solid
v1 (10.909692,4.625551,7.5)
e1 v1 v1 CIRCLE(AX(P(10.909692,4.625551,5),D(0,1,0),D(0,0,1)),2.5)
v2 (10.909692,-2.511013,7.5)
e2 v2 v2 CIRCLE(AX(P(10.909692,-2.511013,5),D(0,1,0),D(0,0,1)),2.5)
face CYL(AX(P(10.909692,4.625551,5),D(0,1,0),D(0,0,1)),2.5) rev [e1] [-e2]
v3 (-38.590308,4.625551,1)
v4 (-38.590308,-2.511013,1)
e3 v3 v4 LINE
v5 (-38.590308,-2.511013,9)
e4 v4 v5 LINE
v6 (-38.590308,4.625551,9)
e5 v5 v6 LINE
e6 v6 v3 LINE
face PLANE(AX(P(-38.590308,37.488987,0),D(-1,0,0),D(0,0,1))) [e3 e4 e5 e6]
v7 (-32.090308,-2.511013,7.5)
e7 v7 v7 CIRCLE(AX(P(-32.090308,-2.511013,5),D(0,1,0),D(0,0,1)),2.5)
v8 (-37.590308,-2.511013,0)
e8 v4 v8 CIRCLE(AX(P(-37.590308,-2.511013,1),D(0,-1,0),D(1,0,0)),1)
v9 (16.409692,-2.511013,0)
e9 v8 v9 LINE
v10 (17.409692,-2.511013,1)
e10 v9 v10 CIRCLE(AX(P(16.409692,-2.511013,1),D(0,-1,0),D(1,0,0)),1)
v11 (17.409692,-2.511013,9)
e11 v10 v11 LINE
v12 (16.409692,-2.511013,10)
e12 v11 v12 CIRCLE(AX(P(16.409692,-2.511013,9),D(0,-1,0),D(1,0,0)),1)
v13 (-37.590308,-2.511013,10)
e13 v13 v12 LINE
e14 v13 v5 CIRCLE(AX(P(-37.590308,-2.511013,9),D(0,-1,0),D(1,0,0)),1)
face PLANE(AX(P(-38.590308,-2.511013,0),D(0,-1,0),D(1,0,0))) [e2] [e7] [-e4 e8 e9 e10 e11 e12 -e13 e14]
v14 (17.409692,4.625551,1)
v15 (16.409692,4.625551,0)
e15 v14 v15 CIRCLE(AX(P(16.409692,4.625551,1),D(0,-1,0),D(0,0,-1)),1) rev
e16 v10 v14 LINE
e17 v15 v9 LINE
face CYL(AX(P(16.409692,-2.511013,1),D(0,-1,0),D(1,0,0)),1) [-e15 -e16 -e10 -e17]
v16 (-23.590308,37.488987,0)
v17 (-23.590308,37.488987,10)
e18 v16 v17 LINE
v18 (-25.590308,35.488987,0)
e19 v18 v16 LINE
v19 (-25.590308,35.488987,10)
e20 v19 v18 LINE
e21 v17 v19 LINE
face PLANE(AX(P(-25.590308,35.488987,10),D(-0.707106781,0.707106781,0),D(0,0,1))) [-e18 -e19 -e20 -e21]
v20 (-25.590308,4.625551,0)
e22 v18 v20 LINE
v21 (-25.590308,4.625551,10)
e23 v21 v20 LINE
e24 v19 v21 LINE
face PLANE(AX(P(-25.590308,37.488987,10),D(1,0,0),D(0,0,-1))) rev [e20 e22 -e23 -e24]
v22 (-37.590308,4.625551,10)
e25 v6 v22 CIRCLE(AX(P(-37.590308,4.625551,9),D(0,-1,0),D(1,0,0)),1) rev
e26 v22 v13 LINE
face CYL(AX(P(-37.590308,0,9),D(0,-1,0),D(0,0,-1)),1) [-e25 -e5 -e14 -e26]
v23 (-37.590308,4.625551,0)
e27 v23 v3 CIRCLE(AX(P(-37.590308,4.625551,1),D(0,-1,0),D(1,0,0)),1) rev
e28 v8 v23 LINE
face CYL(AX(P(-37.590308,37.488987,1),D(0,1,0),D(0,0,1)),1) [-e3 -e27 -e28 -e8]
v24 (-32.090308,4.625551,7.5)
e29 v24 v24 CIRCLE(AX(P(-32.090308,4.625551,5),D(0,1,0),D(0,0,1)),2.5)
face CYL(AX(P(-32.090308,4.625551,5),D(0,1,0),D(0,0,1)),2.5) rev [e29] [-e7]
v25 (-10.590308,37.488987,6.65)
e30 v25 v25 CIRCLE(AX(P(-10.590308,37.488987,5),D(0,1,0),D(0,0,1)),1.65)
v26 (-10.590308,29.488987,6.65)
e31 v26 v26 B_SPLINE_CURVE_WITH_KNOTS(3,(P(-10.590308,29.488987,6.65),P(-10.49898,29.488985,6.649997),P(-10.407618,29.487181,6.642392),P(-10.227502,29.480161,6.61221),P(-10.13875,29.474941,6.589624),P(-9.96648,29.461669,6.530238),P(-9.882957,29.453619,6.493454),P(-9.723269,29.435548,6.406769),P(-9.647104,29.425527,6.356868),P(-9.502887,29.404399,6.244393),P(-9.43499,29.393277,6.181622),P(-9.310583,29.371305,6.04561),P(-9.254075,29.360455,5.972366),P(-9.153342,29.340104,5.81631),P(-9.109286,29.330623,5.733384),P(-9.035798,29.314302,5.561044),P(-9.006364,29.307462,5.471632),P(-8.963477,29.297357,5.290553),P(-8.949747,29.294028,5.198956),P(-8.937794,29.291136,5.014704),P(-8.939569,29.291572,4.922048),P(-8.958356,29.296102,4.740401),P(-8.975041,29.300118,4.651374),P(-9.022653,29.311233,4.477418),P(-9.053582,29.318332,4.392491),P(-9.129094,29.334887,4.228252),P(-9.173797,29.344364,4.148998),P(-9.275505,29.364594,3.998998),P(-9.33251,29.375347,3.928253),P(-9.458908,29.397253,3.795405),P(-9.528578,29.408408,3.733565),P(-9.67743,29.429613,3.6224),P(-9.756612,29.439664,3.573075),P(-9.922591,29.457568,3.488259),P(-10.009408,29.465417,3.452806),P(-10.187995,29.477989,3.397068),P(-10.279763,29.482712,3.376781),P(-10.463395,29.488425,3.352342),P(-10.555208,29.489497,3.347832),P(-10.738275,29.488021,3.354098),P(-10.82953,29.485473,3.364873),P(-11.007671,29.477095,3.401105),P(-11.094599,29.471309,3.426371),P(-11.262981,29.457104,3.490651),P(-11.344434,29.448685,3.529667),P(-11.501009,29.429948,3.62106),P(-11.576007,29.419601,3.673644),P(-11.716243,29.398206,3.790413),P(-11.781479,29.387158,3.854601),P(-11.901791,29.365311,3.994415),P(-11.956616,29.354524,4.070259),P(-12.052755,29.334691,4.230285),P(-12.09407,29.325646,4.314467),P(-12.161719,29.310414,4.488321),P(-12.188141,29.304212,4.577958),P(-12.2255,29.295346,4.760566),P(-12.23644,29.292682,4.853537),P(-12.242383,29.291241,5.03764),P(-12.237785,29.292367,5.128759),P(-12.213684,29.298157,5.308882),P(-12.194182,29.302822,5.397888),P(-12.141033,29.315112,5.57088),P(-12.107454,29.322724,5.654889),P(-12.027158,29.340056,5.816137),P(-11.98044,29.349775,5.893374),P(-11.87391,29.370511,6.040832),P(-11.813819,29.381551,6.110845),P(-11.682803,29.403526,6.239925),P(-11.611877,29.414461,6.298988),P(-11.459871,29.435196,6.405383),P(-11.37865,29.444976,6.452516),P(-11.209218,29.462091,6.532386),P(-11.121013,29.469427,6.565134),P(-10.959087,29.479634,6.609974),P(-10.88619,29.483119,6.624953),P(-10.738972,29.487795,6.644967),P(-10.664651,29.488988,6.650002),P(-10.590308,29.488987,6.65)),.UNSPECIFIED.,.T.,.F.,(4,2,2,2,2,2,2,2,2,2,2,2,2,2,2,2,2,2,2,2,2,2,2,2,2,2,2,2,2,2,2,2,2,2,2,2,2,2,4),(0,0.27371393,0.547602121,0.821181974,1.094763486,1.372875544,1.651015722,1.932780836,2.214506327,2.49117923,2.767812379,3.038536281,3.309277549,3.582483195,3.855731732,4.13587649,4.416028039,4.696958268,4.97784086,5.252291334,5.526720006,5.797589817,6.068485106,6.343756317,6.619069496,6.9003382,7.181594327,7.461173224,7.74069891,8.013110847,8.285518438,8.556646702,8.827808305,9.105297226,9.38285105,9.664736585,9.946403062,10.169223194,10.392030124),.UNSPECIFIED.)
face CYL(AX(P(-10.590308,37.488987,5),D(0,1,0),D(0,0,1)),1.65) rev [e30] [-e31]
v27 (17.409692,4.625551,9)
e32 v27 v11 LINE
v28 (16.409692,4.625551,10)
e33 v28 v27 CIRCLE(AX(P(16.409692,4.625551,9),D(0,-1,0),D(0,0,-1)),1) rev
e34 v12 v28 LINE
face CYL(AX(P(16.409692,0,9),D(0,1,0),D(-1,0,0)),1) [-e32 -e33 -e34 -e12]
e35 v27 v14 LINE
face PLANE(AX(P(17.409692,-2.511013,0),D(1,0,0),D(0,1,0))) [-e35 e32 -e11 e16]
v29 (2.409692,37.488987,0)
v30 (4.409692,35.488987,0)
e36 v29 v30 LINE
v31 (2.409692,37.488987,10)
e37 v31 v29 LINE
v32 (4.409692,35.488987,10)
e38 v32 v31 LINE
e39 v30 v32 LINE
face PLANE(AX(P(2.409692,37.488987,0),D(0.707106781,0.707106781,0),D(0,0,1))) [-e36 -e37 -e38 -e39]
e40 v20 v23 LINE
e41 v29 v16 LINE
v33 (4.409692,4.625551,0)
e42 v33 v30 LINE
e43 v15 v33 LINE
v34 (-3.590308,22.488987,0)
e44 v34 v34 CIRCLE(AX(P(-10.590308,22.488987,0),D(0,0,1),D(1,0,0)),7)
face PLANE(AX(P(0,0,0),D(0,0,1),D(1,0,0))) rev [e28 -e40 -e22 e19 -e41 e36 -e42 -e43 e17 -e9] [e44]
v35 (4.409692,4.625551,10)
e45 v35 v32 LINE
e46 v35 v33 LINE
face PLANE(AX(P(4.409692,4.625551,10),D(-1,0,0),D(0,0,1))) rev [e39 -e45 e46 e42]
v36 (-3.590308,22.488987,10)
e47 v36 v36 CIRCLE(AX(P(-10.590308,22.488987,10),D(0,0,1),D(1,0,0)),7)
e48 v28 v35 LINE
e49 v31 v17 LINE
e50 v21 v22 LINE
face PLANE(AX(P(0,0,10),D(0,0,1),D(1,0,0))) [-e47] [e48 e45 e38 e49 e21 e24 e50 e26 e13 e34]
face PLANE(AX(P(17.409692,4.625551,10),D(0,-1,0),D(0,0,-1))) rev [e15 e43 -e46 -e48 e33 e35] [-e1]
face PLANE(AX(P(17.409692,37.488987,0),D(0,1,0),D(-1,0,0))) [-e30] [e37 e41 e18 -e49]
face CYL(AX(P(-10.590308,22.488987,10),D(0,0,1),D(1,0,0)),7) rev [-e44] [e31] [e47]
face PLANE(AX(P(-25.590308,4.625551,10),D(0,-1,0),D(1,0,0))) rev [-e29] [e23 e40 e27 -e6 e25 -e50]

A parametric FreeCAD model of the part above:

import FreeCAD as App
import Part
import Sketcher

V = App.Vector
Q = App.Units.Quantity


def edges_at(feature, points):
    """Names of the edges that pass closest to the given points."""
    edges = feature.Shape.Edges
    near = lambda p: min(range(len(edges)), key=lambda i: edges[i].distToShape(Part.Vertex(*p))[0])
    return sorted({f"Edge{near(p) + 1}" for p in points})

doc = App.newDocument("Part")
params = doc.addObject("Spreadsheet::Sheet", "Params")
for row, (alias, value) in enumerate([
    ("sketch1_width", "56 mm"),
    ("sketch1_height", "40 mm"),
    ("pad1_length", "10 mm"),
    ("sketch2_width", "13 mm"),
    ("sketch3_width", "13 mm"),
    ("sketch4_diameter", "14 mm"),
    ("hole_diameter", "14 mm"),
    ("sketch5_diameter", "3.3 mm"),
    ("sketch6_diameter", "5 mm"),
    ("hole2_diameter", "5 mm"),
    ("chamfer_size", "2 mm"),
    ("fillet_radius", "1 mm"),
], start=1):
    params.set(f"A{row}", alias)
    params.set(f"B{row}", "=" + value)
    params.setAlias(f"B{row}", alias)

body = doc.addObject("PartDesign::Body", "Body")

sketch1 = body.newObject("Sketcher::SketchObject", "Sketch")
sketch1.AttachmentSupport = (doc.getObject("XY_Plane"), [""])
sketch1.MapMode = "FlatFace"
sketch1.AttachmentOffset = App.Placement(V(0, 0, 10), App.Rotation())
sketch1.addGeometry([
    Part.LineSegment(V(-38.590308, 37.488987, 0), V(-38.590308, -2.511013, 0)),
    Part.LineSegment(V(-38.590308, -2.511013, 0), V(17.409692, -2.511013, 0)),
    Part.LineSegment(V(17.409692, -2.511013, 0), V(17.409692, 37.488987, 0)),
    Part.LineSegment(V(17.409692, 37.488987, 0), V(-38.590308, 37.488987, 0)),
], False)
sketch1.addConstraint([
    Sketcher.Constraint("Coincident", 0, 2, 1, 1),
    Sketcher.Constraint("Coincident", 1, 2, 2, 1),
    Sketcher.Constraint("Coincident", 2, 2, 3, 1),
    Sketcher.Constraint("Coincident", 3, 2, 0, 1),
    Sketcher.Constraint("Vertical", 0),
    Sketcher.Constraint("Horizontal", 1),
    Sketcher.Constraint("Vertical", 2),
    Sketcher.Constraint("Horizontal", 3),
    Sketcher.Constraint("DistanceX", 1, 1, 1, 2, Q("56 mm")),
    Sketcher.Constraint("DistanceY", 0, 2, 0, 1, Q("40 mm")),
    Sketcher.Constraint("DistanceX", 0, 2, -1, 1, Q("38.590308 mm")),
    Sketcher.Constraint("DistanceY", 0, 2, -1, 1, Q("2.511013 mm")),
])
sketch1.setExpression("Constraints[8]", "Params.sketch1_width")
sketch1.setExpression("Constraints[9]", "Params.sketch1_height")
pad1 = body.newObject("PartDesign::Pad", "Pad")
pad1.Profile = sketch1
pad1.setExpression("Length", "Params.pad1_length")
pad1.Reversed = True

sketch2 = body.newObject("Sketcher::SketchObject", "Sketch001")
sketch2.AttachmentSupport = (doc.getObject("XY_Plane"), [""])
sketch2.MapMode = "FlatFace"
sketch2.addGeometry([
    Part.LineSegment(V(-25.590308, 37.488987, 0), V(-25.590308, 4.625551, 0)),
    Part.LineSegment(V(-25.590308, 4.625551, 0), V(-38.590308, 4.625551, 0)),
    Part.LineSegment(V(-38.590308, 4.625551, 0), V(-38.590308, 37.488987, 0)),
    Part.LineSegment(V(-38.590308, 37.488987, 0), V(-25.590308, 37.488987, 0)),
], False)
sketch2.addConstraint([
    Sketcher.Constraint("Coincident", 0, 2, 1, 1),
    Sketcher.Constraint("Coincident", 1, 2, 2, 1),
    Sketcher.Constraint("Coincident", 2, 2, 3, 1),
    Sketcher.Constraint("Coincident", 3, 2, 0, 1),
    Sketcher.Constraint("Vertical", 0),
    Sketcher.Constraint("Horizontal", 1),
    Sketcher.Constraint("Vertical", 2),
    Sketcher.Constraint("Horizontal", 3),
    Sketcher.Constraint("DistanceX", 1, 2, 1, 1, Q("13 mm")),
    Sketcher.Constraint("DistanceY", 0, 2, 0, 1, Q("32.863436 mm")),
    Sketcher.Constraint("DistanceX", 0, 2, -1, 1, Q("25.590308 mm")),
    Sketcher.Constraint("DistanceY", -1, 1, 0, 2, Q("4.625551 mm")),
])
sketch2.setExpression("Constraints[8]", "Params.sketch2_width")
pocket1 = body.newObject("PartDesign::Pocket", "Pocket")
pocket1.Profile = sketch2
pocket1.Type = "ThroughAll"
pocket1.Reversed = True

sketch3 = body.newObject("Sketcher::SketchObject", "Sketch002")
sketch3.AttachmentSupport = (doc.getObject("XY_Plane"), [""])
sketch3.MapMode = "FlatFace"
sketch3.addGeometry([
    Part.LineSegment(V(17.409692, 37.488987, 0), V(17.409692, 4.625551, 0)),
    Part.LineSegment(V(17.409692, 4.625551, 0), V(4.409692, 4.625551, 0)),
    Part.LineSegment(V(4.409692, 4.625551, 0), V(4.409692, 37.488987, 0)),
    Part.LineSegment(V(4.409692, 37.488987, 0), V(17.409692, 37.488987, 0)),
], False)
sketch3.addConstraint([
    Sketcher.Constraint("Coincident", 0, 2, 1, 1),
    Sketcher.Constraint("Coincident", 1, 2, 2, 1),
    Sketcher.Constraint("Coincident", 2, 2, 3, 1),
    Sketcher.Constraint("Coincident", 3, 2, 0, 1),
    Sketcher.Constraint("Vertical", 0),
    Sketcher.Constraint("Horizontal", 1),
    Sketcher.Constraint("Vertical", 2),
    Sketcher.Constraint("Horizontal", 3),
    Sketcher.Constraint("DistanceX", 1, 2, 1, 1, Q("13 mm")),
    Sketcher.Constraint("DistanceY", 0, 2, 0, 1, Q("32.863436 mm")),
    Sketcher.Constraint("DistanceX", -1, 1, 0, 2, Q("17.409692 mm")),
    Sketcher.Constraint("DistanceY", -1, 1, 0, 2, Q("4.625551 mm")),
])
sketch3.setExpression("Constraints[8]", "Params.sketch3_width")
pocket2 = body.newObject("PartDesign::Pocket", "Pocket001")
pocket2.Profile = sketch3
pocket2.Type = "ThroughAll"
pocket2.Reversed = True

sketch4 = body.newObject("Sketcher::SketchObject", "Sketch003")
sketch4.AttachmentSupport = (doc.getObject("XY_Plane"), [""])
sketch4.MapMode = "FlatFace"
sketch4.AttachmentOffset = App.Placement(V(0, 0, 10), App.Rotation())
sketch4.addGeometry(Part.Circle(V(-10.590308, 22.488987, 0), V(0, 0, 1), 7), False)
sketch4.addConstraint([
    Sketcher.Constraint("Diameter", 0, Q("14 mm")),
    Sketcher.Constraint("DistanceX", 0, 3, -1, 1, Q("10.590308 mm")),
    Sketcher.Constraint("DistanceY", -1, 1, 0, 3, Q("22.488987 mm")),
])
sketch4.setExpression("Constraints[0]", "Params.sketch4_diameter")
doc.recompute()
hole = body.newObject("PartDesign::Hole", "Hole")
hole.Profile = sketch4
hole.ThreadType = "None"
hole.setExpression("Diameter", "Params.hole_diameter")
hole.DepthType = "ThroughAll"

sketch5 = body.newObject("Sketcher::SketchObject", "Sketch004")
sketch5.AttachmentSupport = (doc.getObject("XZ_Plane"), [""])
sketch5.MapMode = "FlatFace"
sketch5.AttachmentOffset = App.Placement(V(0, 0, -37.488987), App.Rotation())
sketch5.addGeometry(Part.Circle(V(-10.590308, 5, 0), V(0, 0, 1), 1.65), False)
sketch5.addConstraint([
    Sketcher.Constraint("Diameter", 0, Q("3.3 mm")),
    Sketcher.Constraint("DistanceY", -1, 1, 0, 3, Q("5 mm")),
    Sketcher.Constraint("DistanceX", 0, 3, -1, 1, Q("10.590308 mm")),
])
sketch5.setExpression("Constraints[0]", "Params.sketch5_diameter")
pocket3 = body.newObject("PartDesign::Pocket", "Pocket002")
pocket3.Profile = sketch5
pocket3.Type = "UpToFirst"
pocket3.Reversed = True

sketch6 = body.newObject("Sketcher::SketchObject", "Sketch005")
sketch6.AttachmentSupport = (doc.getObject("XZ_Plane"), [""])
sketch6.MapMode = "FlatFace"
sketch6.AttachmentOffset = App.Placement(V(0, 0, -4.625551), App.Rotation())
sketch6.addGeometry([
    Part.Circle(V(-32.090308, 5, 0), V(0, 0, 1), 2.5),
    Part.Circle(V(10.909692, 5, 0), V(0, 0, 1), 2.5),
], False)
sketch6.addConstraint([
    Sketcher.Constraint("Equal", 0, 1),
    Sketcher.Constraint("Horizontal", 0, 3, 1, 3),
    Sketcher.Constraint("Diameter", 0, Q("5 mm")),
    Sketcher.Constraint("DistanceY", -1, 1, 0, 3, Q("5 mm")),
    Sketcher.Constraint("DistanceX", 0, 3, 1, 3, Q("43 mm")),
    Sketcher.Constraint("DistanceX", 0, 3, -1, 1, Q("32.090308 mm")),
])
sketch6.setExpression("Constraints[2]", "Params.sketch6_diameter")
doc.recompute()
hole2 = body.newObject("PartDesign::Hole", "Hole001")
hole2.Profile = sketch6
hole2.ThreadType = "None"
hole2.setExpression("Diameter", "Params.hole2_diameter")
hole2.DepthType = "ThroughAll"
hole2.Reversed = True
doc.recompute()

chamfer = body.newObject("PartDesign::Chamfer", "Chamfer")
chamfer.Base = (hole2, edges_at(hole2, [(-25.59, 37.489, 5), (4.41, 37.489, 5)]))
chamfer.setExpression("Size", "Params.chamfer_size")
doc.recompute()

fillet = body.newObject("PartDesign::Fillet", "Fillet")
fillet.Base = (chamfer, edges_at(chamfer, [
    (17.41, 1.057, 0),
    (-38.59, 1.057, 10),
    (-38.59, 1.057, 0),
    (17.41, 1.057, 10),
]))
fillet.setExpression("Radius", "Params.fillet_radius")

doc.recompute()
